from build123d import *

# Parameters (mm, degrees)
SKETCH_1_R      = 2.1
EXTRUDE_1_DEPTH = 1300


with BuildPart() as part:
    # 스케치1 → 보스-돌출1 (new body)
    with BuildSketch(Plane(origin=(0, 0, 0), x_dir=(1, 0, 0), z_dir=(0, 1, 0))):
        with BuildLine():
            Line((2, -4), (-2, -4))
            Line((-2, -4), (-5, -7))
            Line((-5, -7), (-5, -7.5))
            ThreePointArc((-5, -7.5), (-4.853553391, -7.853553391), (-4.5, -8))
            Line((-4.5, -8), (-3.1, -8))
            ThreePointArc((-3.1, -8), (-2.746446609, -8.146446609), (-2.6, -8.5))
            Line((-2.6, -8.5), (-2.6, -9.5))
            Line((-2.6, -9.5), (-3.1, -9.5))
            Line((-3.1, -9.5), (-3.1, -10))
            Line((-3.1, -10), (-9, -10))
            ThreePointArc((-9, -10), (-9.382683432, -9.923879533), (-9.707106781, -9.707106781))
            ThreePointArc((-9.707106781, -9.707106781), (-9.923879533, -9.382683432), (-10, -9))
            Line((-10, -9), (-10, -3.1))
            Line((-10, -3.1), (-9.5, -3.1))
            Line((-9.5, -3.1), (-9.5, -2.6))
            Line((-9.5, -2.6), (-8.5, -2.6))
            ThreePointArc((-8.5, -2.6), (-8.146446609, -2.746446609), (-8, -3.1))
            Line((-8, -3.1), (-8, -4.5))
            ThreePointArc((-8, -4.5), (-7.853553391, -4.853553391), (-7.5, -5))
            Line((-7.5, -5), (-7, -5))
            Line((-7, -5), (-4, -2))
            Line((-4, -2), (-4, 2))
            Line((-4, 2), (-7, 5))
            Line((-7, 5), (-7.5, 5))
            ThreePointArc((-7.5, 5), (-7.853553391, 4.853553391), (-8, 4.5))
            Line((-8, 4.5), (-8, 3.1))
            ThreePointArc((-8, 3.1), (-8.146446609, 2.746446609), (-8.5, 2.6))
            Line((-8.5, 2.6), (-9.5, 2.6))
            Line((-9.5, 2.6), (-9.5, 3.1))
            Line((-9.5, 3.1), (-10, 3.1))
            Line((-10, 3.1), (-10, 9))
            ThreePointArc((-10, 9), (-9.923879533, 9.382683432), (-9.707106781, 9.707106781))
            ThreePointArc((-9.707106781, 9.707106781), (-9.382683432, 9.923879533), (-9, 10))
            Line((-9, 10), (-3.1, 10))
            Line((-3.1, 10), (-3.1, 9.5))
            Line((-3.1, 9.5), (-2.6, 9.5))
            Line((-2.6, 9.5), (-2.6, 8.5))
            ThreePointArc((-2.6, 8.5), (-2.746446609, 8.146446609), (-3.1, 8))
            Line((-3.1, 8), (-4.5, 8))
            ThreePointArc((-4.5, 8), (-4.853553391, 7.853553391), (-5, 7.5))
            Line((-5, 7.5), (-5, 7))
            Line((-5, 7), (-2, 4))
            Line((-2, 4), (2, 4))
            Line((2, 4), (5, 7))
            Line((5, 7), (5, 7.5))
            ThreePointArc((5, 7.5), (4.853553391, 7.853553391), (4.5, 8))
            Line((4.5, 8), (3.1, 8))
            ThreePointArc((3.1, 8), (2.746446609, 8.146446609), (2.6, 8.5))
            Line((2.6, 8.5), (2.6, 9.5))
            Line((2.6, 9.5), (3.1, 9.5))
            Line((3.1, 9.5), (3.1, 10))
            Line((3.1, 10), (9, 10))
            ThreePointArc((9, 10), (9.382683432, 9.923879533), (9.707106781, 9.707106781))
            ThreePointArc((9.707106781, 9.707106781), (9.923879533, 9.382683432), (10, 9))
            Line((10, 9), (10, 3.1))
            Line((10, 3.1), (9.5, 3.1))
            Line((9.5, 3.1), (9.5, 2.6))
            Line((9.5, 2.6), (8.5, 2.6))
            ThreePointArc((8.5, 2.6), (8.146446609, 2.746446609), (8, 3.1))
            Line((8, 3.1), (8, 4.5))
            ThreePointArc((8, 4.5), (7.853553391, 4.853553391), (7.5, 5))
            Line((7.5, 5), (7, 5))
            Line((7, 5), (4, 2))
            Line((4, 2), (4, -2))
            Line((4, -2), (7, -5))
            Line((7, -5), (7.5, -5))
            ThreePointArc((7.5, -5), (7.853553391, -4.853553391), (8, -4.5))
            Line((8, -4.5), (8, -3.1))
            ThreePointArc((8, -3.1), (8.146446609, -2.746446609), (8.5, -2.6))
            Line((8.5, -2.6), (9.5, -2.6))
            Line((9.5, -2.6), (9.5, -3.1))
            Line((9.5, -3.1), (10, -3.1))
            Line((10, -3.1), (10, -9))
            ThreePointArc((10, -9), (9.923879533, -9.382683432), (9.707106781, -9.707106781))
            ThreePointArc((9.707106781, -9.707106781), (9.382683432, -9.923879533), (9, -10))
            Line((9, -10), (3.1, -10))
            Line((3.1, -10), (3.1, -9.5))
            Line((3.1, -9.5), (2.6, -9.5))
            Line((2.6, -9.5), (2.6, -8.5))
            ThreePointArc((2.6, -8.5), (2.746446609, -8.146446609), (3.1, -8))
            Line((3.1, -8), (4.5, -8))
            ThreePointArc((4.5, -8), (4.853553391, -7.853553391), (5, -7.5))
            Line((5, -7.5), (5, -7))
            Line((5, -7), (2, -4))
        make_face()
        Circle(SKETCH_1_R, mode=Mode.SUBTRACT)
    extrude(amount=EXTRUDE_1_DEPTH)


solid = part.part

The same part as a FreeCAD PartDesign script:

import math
import FreeCAD as App
import Part
import Sketcher

V = App.Vector

doc = App.newDocument("Part")
body = doc.addObject("PartDesign::Body", "Body")

sketch1 = body.newObject("Sketcher::SketchObject", "Sketch")
sketch1.AttachmentSupport = (doc.getObject("XZ_Plane"), [""])
sketch1.MapMode = "FlatFace"
sketch1.addGeometry(Part.LineSegment(V(-2, 4, 0), V(2, 4, 0)), False)
sketch1.addGeometry(Part.LineSegment(V(2, 4, 0), V(5, 7, 0)), False)
sketch1.addGeometry(Part.LineSegment(V(5, 7, 0), V(5, 7.5, 0)), False)
sketch1.addGeometry(Part.ArcOfCircle(Part.Circle(V(4.5, 7.5, 0), V(0, 0, 1), 0.5), math.radians(0), math.radians(90)), False)
sketch1.addGeometry(Part.LineSegment(V(4.5, 8, 0), V(3.1, 8, 0)), False)
sketch1.addGeometry(Part.ArcOfCircle(Part.Circle(V(3.1, 8.5, 0), V(0, 0, 1), 0.5), math.radians(180), math.radians(270)), False)
sketch1.addGeometry(Part.LineSegment(V(2.6, 8.5, 0), V(2.6, 9.5, 0)), False)
sketch1.addGeometry(Part.LineSegment(V(2.6, 9.5, 0), V(3.1, 9.5, 0)), False)
sketch1.addGeometry(Part.LineSegment(V(3.1, 9.5, 0), V(3.1, 10, 0)), False)
sketch1.addGeometry(Part.LineSegment(V(3.1, 10, 0), V(9, 10, 0)), False)
sketch1.addGeometry(Part.ArcOfCircle(Part.Circle(V(9, 9, 0), V(0, 0, 1), 1), math.radians(45), math.radians(90)), False)
sketch1.addGeometry(Part.ArcOfCircle(Part.Circle(V(9, 9, 0), V(0, 0, 1), 1), math.radians(0), math.radians(45)), False)
sketch1.addGeometry(Part.LineSegment(V(10, 9, 0), V(10, 3.1, 0)), False)
sketch1.addGeometry(Part.LineSegment(V(10, 3.1, 0), V(9.5, 3.1, 0)), False)
sketch1.addGeometry(Part.LineSegment(V(9.5, 3.1, 0), V(9.5, 2.6, 0)), False)
sketch1.addGeometry(Part.LineSegment(V(9.5, 2.6, 0), V(8.5, 2.6, 0)), False)
sketch1.addGeometry(Part.ArcOfCircle(Part.Circle(V(8.5, 3.1, 0), V(0, 0, 1), 0.5), math.radians(180), math.radians(270)), False)
sketch1.addGeometry(Part.LineSegment(V(8, 3.1, 0), V(8, 4.5, 0)), False)
sketch1.addGeometry(Part.ArcOfCircle(Part.Circle(V(7.5, 4.5, 0), V(0, 0, 1), 0.5), math.radians(0), math.radians(90)), False)
sketch1.addGeometry(Part.LineSegment(V(7.5, 5, 0), V(7, 5, 0)), False)
sketch1.addGeometry(Part.LineSegment(V(7, 5, 0), V(4, 2, 0)), False)
sketch1.addGeometry(Part.LineSegment(V(4, 2, 0), V(4, -2, 0)), False)
sketch1.addGeometry(Part.LineSegment(V(4, -2, 0), V(7, -5, 0)), False)
sketch1.addGeometry(Part.LineSegment(V(7, -5, 0), V(7.5, -5, 0)), False)
sketch1.addGeometry(Part.ArcOfCircle(Part.Circle(V(7.5, -4.5, 0), V(0, 0, 1), 0.5), math.radians(-90), math.radians(0)), False)
sketch1.addGeometry(Part.LineSegment(V(8, -4.5, 0), V(8, -3.1, 0)), False)
sketch1.addGeometry(Part.ArcOfCircle(Part.Circle(V(8.5, -3.1, 0), V(0, 0, 1), 0.5), math.radians(90), math.radians(180)), False)
sketch1.addGeometry(Part.LineSegment(V(8.5, -2.6, 0), V(9.5, -2.6, 0)), False)
sketch1.addGeometry(Part.LineSegment(V(9.5, -2.6, 0), V(9.5, -3.1, 0)), False)
sketch1.addGeometry(Part.LineSegment(V(9.5, -3.1, 0), V(10, -3.1, 0)), False)
sketch1.addGeometry(Part.LineSegment(V(10, -3.1, 0), V(10, -9, 0)), False)
sketch1.addGeometry(Part.ArcOfCircle(Part.Circle(V(9, -9, 0), V(0, 0, 1), 1), math.radians(-45), math.radians(0)), False)
sketch1.addGeometry(Part.ArcOfCircle(Part.Circle(V(9, -9, 0), V(0, 0, 1), 1), math.radians(-90), math.radians(-45)), False)
sketch1.addGeometry(Part.LineSegment(V(9, -10, 0), V(3.1, -10, 0)), False)
sketch1.addGeometry(Part.LineSegment(V(3.1, -10, 0), V(3.1, -9.5, 0)), False)
sketch1.addGeometry(Part.LineSegment(V(3.1, -9.5, 0), V(2.6, -9.5, 0)), False)
sketch1.addGeometry(Part.LineSegment(V(2.6, -9.5, 0), V(2.6, -8.5, 0)), False)
sketch1.addGeometry(Part.ArcOfCircle(Part.Circle(V(3.1, -8.5, 0), V(0, 0, 1), 0.5), math.radians(90), math.radians(180)), False)
sketch1.addGeometry(Part.LineSegment(V(3.1, -8, 0), V(4.5, -8, 0)), False)
sketch1.addGeometry(Part.ArcOfCircle(Part.Circle(V(4.5, -7.5, 0), V(0, 0, 1), 0.5), math.radians(-90), math.radians(0)), False)
sketch1.addGeometry(Part.LineSegment(V(5, -7.5, 0), V(5, -7, 0)), False)
sketch1.addGeometry(Part.LineSegment(V(5, -7, 0), V(2, -4, 0)), False)
sketch1.addGeometry(Part.LineSegment(V(2, -4, 0), V(-2, -4, 0)), False)
sketch1.addGeometry(Part.LineSegment(V(-2, -4, 0), V(-5, -7, 0)), False)
sketch1.addGeometry(Part.LineSegment(V(-5, -7, 0), V(-5, -7.5, 0)), False)
sketch1.addGeometry(Part.ArcOfCircle(Part.Circle(V(-4.5, -7.5, 0), V(0, 0, 1), 0.5), math.radians(180), math.radians(270)), False)
sketch1.addGeometry(Part.LineSegment(V(-4.5, -8, 0), V(-3.1, -8, 0)), False)
sketch1.addGeometry(Part.ArcOfCircle(Part.Circle(V(-3.1, -8.5, 0), V(0, 0, 1), 0.5), math.radians(0), math.radians(90)), False)
sketch1.addGeometry(Part.LineSegment(V(-2.6, -8.5, 0), V(-2.6, -9.5, 0)), False)
sketch1.addGeometry(Part.LineSegment(V(-2.6, -9.5, 0), V(-3.1, -9.5, 0)), False)
sketch1.addGeometry(Part.LineSegment(V(-3.1, -9.5, 0), V(-3.1, -10, 0)), False)
sketch1.addGeometry(Part.LineSegment(V(-3.1, -10, 0), V(-9, -10, 0)), False)
sketch1.addGeometry(Part.ArcOfCircle(Part.Circle(V(-9, -9, 0), V(0, 0, 1), 1), math.radians(-135), math.radians(-90)), False)
sketch1.addGeometry(Part.ArcOfCircle(Part.Circle(V(-9, -9, 0), V(0, 0, 1), 1), math.radians(180), math.radians(225)), False)
sketch1.addGeometry(Part.LineSegment(V(-10, -9, 0), V(-10, -3.1, 0)), False)
sketch1.addGeometry(Part.LineSegment(V(-10, -3.1, 0), V(-9.5, -3.1, 0)), False)
sketch1.addGeometry(Part.LineSegment(V(-9.5, -3.1, 0), V(-9.5, -2.6, 0)), False)
sketch1.addGeometry(Part.LineSegment(V(-9.5, -2.6, 0), V(-8.5, -2.6, 0)), False)
sketch1.addGeometry(Part.ArcOfCircle(Part.Circle(V(-8.5, -3.1, 0), V(0, 0, 1), 0.5), math.radians(0), math.radians(90)), False)
sketch1.addGeometry(Part.LineSegment(V(-8, -3.1, 0), V(-8, -4.5, 0)), False)
sketch1.addGeometry(Part.ArcOfCircle(Part.Circle(V(-7.5, -4.5, 0), V(0, 0, 1), 0.5), math.radians(180), math.radians(270)), False)
sketch1.addGeometry(Part.LineSegment(V(-7.5, -5, 0), V(-7, -5, 0)), False)
sketch1.addGeometry(Part.LineSegment(V(-7, -5, 0), V(-4, -2, 0)), False)
sketch1.addGeometry(Part.LineSegment(V(-4, -2, 0), V(-4, 2, 0)), False)
sketch1.addGeometry(Part.LineSegment(V(-4, 2, 0), V(-7, 5, 0)), False)
sketch1.addGeometry(Part.LineSegment(V(-7, 5, 0), V(-7.5, 5, 0)), False)
sketch1.addGeometry(Part.ArcOfCircle(Part.Circle(V(-7.5, 4.5, 0), V(0, 0, 1), 0.5), math.radians(90), math.radians(180)), False)
sketch1.addGeometry(Part.LineSegment(V(-8, 4.5, 0), V(-8, 3.1, 0)), False)
sketch1.addGeometry(Part.ArcOfCircle(Part.Circle(V(-8.5, 3.1, 0), V(0, 0, 1), 0.5), math.radians(-90), math.radians(0)), False)
sketch1.addGeometry(Part.LineSegment(V(-8.5, 2.6, 0), V(-9.5, 2.6, 0)), False)
sketch1.addGeometry(Part.LineSegment(V(-9.5, 2.6, 0), V(-9.5, 3.1, 0)), False)
sketch1.addGeometry(Part.LineSegment(V(-9.5, 3.1, 0), V(-10, 3.1, 0)), False)
sketch1.addGeometry(Part.LineSegment(V(-10, 3.1, 0), V(-10, 9, 0)), False)
sketch1.addGeometry(Part.ArcOfCircle(Part.Circle(V(-9, 9, 0), V(0, 0, 1), 1), math.radians(135), math.radians(180)), False)
sketch1.addGeometry(Part.ArcOfCircle(Part.Circle(V(-9, 9, 0), V(0, 0, 1), 1), math.radians(90), math.radians(135)), False)
sketch1.addGeometry(Part.LineSegment(V(-9, 10, 0), V(-3.1, 10, 0)), False)
sketch1.addGeometry(Part.LineSegment(V(-3.1, 10, 0), V(-3.1, 9.5, 0)), False)
sketch1.addGeometry(Part.LineSegment(V(-3.1, 9.5, 0), V(-2.6, 9.5, 0)), False)
sketch1.addGeometry(Part.LineSegment(V(-2.6, 9.5, 0), V(-2.6, 8.5, 0)), False)
sketch1.addGeometry(Part.ArcOfCircle(Part.Circle(V(-3.1, 8.5, 0), V(0, 0, 1), 0.5), math.radians(-90), math.radians(0)), False)
sketch1.addGeometry(Part.LineSegment(V(-3.1, 8, 0), V(-4.5, 8, 0)), False)
sketch1.addGeometry(Part.ArcOfCircle(Part.Circle(V(-4.5, 7.5, 0), V(0, 0, 1), 0.5), math.radians(90), math.radians(180)), False)
sketch1.addGeometry(Part.LineSegment(V(-5, 7.5, 0), V(-5, 7, 0)), False)
sketch1.addGeometry(Part.LineSegment(V(-5, 7, 0), V(-2, 4, 0)), False)
sketch1.addGeometry(Part.Circle(V(0, 0, 0), V(0, 0, 1), 2.1), False)
sketch1.addConstraint(Sketcher.Constraint("Coincident", 0, 2, 1, 1))
sketch1.addConstraint(Sketcher.Constraint("Coincident", 1, 2, 2, 1))
sketch1.addConstraint(Sketcher.Constraint("Tangent", 2, 2, 3, 1))
sketch1.addConstraint(Sketcher.Constraint("Tangent", 3, 2, 4, 1))
sketch1.addConstraint(Sketcher.Constraint("Tangent", 4, 2, 5, 2))
sketch1.addConstraint(Sketcher.Constraint("Tangent", 5, 1, 6, 1))
sketch1.addConstraint(Sketcher.Constraint("Coincident", 6, 2, 7, 1))
sketch1.addConstraint(Sketcher.Constraint("Coincident", 7, 2, 8, 1))
sketch1.addConstraint(Sketcher.Constraint("Coincident", 8, 2, 9, 1))
sketch1.addConstraint(Sketcher.Constraint("Tangent", 9, 2, 10, 2))
sketch1.addConstraint(Sketcher.Constraint("Tangent", 10, 1, 11, 2))
sketch1.addConstraint(Sketcher.Constraint("Tangent", 11, 1, 12, 1))
sketch1.addConstraint(Sketcher.Constraint("Coincident", 12, 2, 13, 1))
sketch1.addConstraint(Sketcher.Constraint("Coincident", 13, 2, 14, 1))
sketch1.addConstraint(Sketcher.Constraint("Coincident", 14, 2, 15, 1))
sketch1.addConstraint(Sketcher.Constraint("Tangent", 15, 2, 16, 2))
sketch1.addConstraint(Sketcher.Constraint("Tangent", 16, 1, 17, 1))
sketch1.addConstraint(Sketcher.Constraint("Tangent", 17, 2, 18, 1))
sketch1.addConstraint(Sketcher.Constraint("Tangent", 18, 2, 19, 1))
sketch1.addConstraint(Sketcher.Constraint("Coincident", 19, 2, 20, 1))
sketch1.addConstraint(Sketcher.Constraint("Coincident", 20, 2, 21, 1))
sketch1.addConstraint(Sketcher.Constraint("Coincident", 21, 2, 22, 1))
sketch1.addConstraint(Sketcher.Constraint("Coincident", 22, 2, 23, 1))
sketch1.addConstraint(Sketcher.Constraint("Tangent", 23, 2, 24, 1))
sketch1.addConstraint(Sketcher.Constraint("Tangent", 24, 2, 25, 1))
sketch1.addConstraint(Sketcher.Constraint("Tangent", 25, 2, 26, 2))
sketch1.addConstraint(Sketcher.Constraint("Tangent", 26, 1, 27, 1))
sketch1.addConstraint(Sketcher.Constraint("Coincident", 27, 2, 28, 1))
sketch1.addConstraint(Sketcher.Constraint("Coincident", 28, 2, 29, 1))
sketch1.addConstraint(Sketcher.Constraint("Coincident", 29, 2, 30, 1))
sketch1.addConstraint(Sketcher.Constraint("Tangent", 30, 2, 31, 2))
sketch1.addConstraint(Sketcher.Constraint("Tangent", 31, 1, 32, 2))
sketch1.addConstraint(Sketcher.Constraint("Tangent", 32, 1, 33, 1))
sketch1.addConstraint(Sketcher.Constraint("Coincident", 33, 2, 34, 1))
sketch1.addConstraint(Sketcher.Constraint("Coincident", 34, 2, 35, 1))
sketch1.addConstraint(Sketcher.Constraint("Coincident", 35, 2, 36, 1))
sketch1.addConstraint(Sketcher.Constraint("Tangent", 36, 2, 37, 2))
sketch1.addConstraint(Sketcher.Constraint("Tangent", 37, 1, 38, 1))
sketch1.addConstraint(Sketcher.Constraint("Tangent", 38, 2, 39, 1))
sketch1.addConstraint(Sketcher.Constraint("Tangent", 39, 2, 40, 1))
sketch1.addConstraint(Sketcher.Constraint("Coincident", 40, 2, 41, 1))
sketch1.addConstraint(Sketcher.Constraint("Coincident", 41, 2, 42, 1))
sketch1.addConstraint(Sketcher.Constraint("Coincident", 42, 2, 43, 1))
sketch1.addConstraint(Sketcher.Constraint("Coincident", 43, 2, 44, 1))
sketch1.addConstraint(Sketcher.Constraint("Tangent", 44, 2, 45, 1))
sketch1.addConstraint(Sketcher.Constraint("Tangent", 45, 2, 46, 1))
sketch1.addConstraint(Sketcher.Constraint("Tangent", 46, 2, 47, 2))
sketch1.addConstraint(Sketcher.Constraint("Tangent", 47, 1, 48, 1))
sketch1.addConstraint(Sketcher.Constraint("Coincident", 48, 2, 49, 1))
sketch1.addConstraint(Sketcher.Constraint("Coincident", 49, 2, 50, 1))
sketch1.addConstraint(Sketcher.Constraint("Coincident", 50, 2, 51, 1))
sketch1.addConstraint(Sketcher.Constraint("Tangent", 51, 2, 52, 2))
sketch1.addConstraint(Sketcher.Constraint("Tangent", 52, 1, 53, 2))
sketch1.addConstraint(Sketcher.Constraint("Tangent", 53, 1, 54, 1))
sketch1.addConstraint(Sketcher.Constraint("Coincident", 54, 2, 55, 1))
sketch1.addConstraint(Sketcher.Constraint("Coincident", 55, 2, 56, 1))
sketch1.addConstraint(Sketcher.Constraint("Coincident", 56, 2, 57, 1))
sketch1.addConstraint(Sketcher.Constraint("Tangent", 57, 2, 58, 2))
sketch1.addConstraint(Sketcher.Constraint("Tangent", 58, 1, 59, 1))
sketch1.addConstraint(Sketcher.Constraint("Tangent", 59, 2, 60, 1))
sketch1.addConstraint(Sketcher.Constraint("Tangent", 60, 2, 61, 1))
sketch1.addConstraint(Sketcher.Constraint("Coincident", 61, 2, 62, 1))
sketch1.addConstraint(Sketcher.Constraint("Coincident", 62, 2, 63, 1))
sketch1.addConstraint(Sketcher.Constraint("Coincident", 63, 2, 64, 1))
sketch1.addConstraint(Sketcher.Constraint("Coincident", 64, 2, 65, 1))
sketch1.addConstraint(Sketcher.Constraint("Tangent", 65, 2, 66, 1))
sketch1.addConstraint(Sketcher.Constraint("Tangent", 66, 2, 67, 1))
sketch1.addConstraint(Sketcher.Constraint("Tangent", 67, 2, 68, 2))
sketch1.addConstraint(Sketcher.Constraint("Tangent", 68, 1, 69, 1))
sketch1.addConstraint(Sketcher.Constraint("Coincident", 69, 2, 70, 1))
sketch1.addConstraint(Sketcher.Constraint("Coincident", 70, 2, 71, 1))
sketch1.addConstraint(Sketcher.Constraint("Coincident", 71, 2, 72, 1))
sketch1.addConstraint(Sketcher.Constraint("Tangent", 72, 2, 73, 2))
sketch1.addConstraint(Sketcher.Constraint("Tangent", 73, 1, 74, 2))
sketch1.addConstraint(Sketcher.Constraint("Tangent", 74, 1, 75, 1))
sketch1.addConstraint(Sketcher.Constraint("Coincident", 75, 2, 76, 1))
sketch1.addConstraint(Sketcher.Constraint("Coincident", 76, 2, 77, 1))
sketch1.addConstraint(Sketcher.Constraint("Coincident", 77, 2, 78, 1))
sketch1.addConstraint(Sketcher.Constraint("Tangent", 78, 2, 79, 2))
sketch1.addConstraint(Sketcher.Constraint("Tangent", 79, 1, 80, 1))
sketch1.addConstraint(Sketcher.Constraint("Tangent", 80, 2, 81, 1))
sketch1.addConstraint(Sketcher.Constraint("Tangent", 81, 2, 82, 1))
sketch1.addConstraint(Sketcher.Constraint("Coincident", 82, 2, 83, 1))
sketch1.addConstraint(Sketcher.Constraint("Coincident", 83, 2, 0, 1))
sketch1.addConstraint(Sketcher.Constraint("Horizontal", 0))
sketch1.addConstraint(Sketcher.Constraint("Vertical", 2))
sketch1.addConstraint(Sketcher.Constraint("Horizontal", 4))
sketch1.addConstraint(Sketcher.Constraint("Vertical", 6))
sketch1.addConstraint(Sketcher.Constraint("Horizontal", 7))
sketch1.addConstraint(Sketcher.Constraint("Vertical", 8))
sketch1.addConstraint(Sketcher.Constraint("Horizontal", 9))
sketch1.addConstraint(Sketcher.Constraint("Vertical", 12))
sketch1.addConstraint(Sketcher.Constraint("Horizontal", 13))
sketch1.addConstraint(Sketcher.Constraint("Vertical", 14))
sketch1.addConstraint(Sketcher.Constraint("Horizontal", 15))
sketch1.addConstraint(Sketcher.Constraint("Vertical", 17))
sketch1.addConstraint(Sketcher.Constraint("Horizontal", 19))
sketch1.addConstraint(Sketcher.Constraint("Vertical", 21))
sketch1.addConstraint(Sketcher.Constraint("Horizontal", 23))
sketch1.addConstraint(Sketcher.Constraint("Vertical", 25))
sketch1.addConstraint(Sketcher.Constraint("Horizontal", 27))
sketch1.addConstraint(Sketcher.Constraint("Vertical", 28))
sketch1.addConstraint(Sketcher.Constraint("Horizontal", 29))
sketch1.addConstraint(Sketcher.Constraint("Vertical", 30))
sketch1.addConstraint(Sketcher.Constraint("Horizontal", 33))
sketch1.addConstraint(Sketcher.Constraint("Vertical", 34))
sketch1.addConstraint(Sketcher.Constraint("Horizontal", 35))
sketch1.addConstraint(Sketcher.Constraint("Vertical", 36))
sketch1.addConstraint(Sketcher.Constraint("Horizontal", 38))
sketch1.addConstraint(Sketcher.Constraint("Vertical", 40))
sketch1.addConstraint(Sketcher.Constraint("Horizontal", 42))
sketch1.addConstraint(Sketcher.Constraint("Vertical", 44))
sketch1.addConstraint(Sketcher.Constraint("Horizontal", 46))
sketch1.addConstraint(Sketcher.Constraint("Vertical", 48))
sketch1.addConstraint(Sketcher.Constraint("Horizontal", 49))
sketch1.addConstraint(Sketcher.Constraint("Vertical", 50))
sketch1.addConstraint(Sketcher.Constraint("Horizontal", 51))
sketch1.addConstraint(Sketcher.Constraint("Vertical", 54))
sketch1.addConstraint(Sketcher.Constraint("Horizontal", 55))
sketch1.addConstraint(Sketcher.Constraint("Vertical", 56))
sketch1.addConstraint(Sketcher.Constraint("Horizontal", 57))
sketch1.addConstraint(Sketcher.Constraint("Vertical", 59))
sketch1.addConstraint(Sketcher.Constraint("Horizontal", 61))
sketch1.addConstraint(Sketcher.Constraint("Vertical", 63))
sketch1.addConstraint(Sketcher.Constraint("Horizontal", 65))
sketch1.addConstraint(Sketcher.Constraint("Vertical", 67))
sketch1.addConstraint(Sketcher.Constraint("Horizontal", 69))
sketch1.addConstraint(Sketcher.Constraint("Vertical", 70))
sketch1.addConstraint(Sketcher.Constraint("Horizontal", 71))
sketch1.addConstraint(Sketcher.Constraint("Vertical", 72))
sketch1.addConstraint(Sketcher.Constraint("Horizontal", 75))
sketch1.addConstraint(Sketcher.Constraint("Vertical", 76))
sketch1.addConstraint(Sketcher.Constraint("Horizontal", 77))
sketch1.addConstraint(Sketcher.Constraint("Vertical", 78))
sketch1.addConstraint(Sketcher.Constraint("Horizontal", 80))
sketch1.addConstraint(Sketcher.Constraint("Vertical", 82))
sketch1.addConstraint(Sketcher.Constraint("Coincident", 84, 3, -1, 1))
sketch1.addConstraint(Sketcher.Constraint("Equal", 3, 5))
sketch1.addConstraint(Sketcher.Constraint("Equal", 10, 11))
sketch1.addConstraint(Sketcher.Constraint("Equal", 5, 16))
sketch1.addConstraint(Sketcher.Constraint("Equal", 16, 18))
sketch1.addConstraint(Sketcher.Constraint("Equal", 18, 24))
sketch1.addConstraint(Sketcher.Constraint("Equal", 24, 26))
sketch1.addConstraint(Sketcher.Constraint("Equal", 11, 31))
sketch1.addConstraint(Sketcher.Constraint("Equal", 31, 32))
sketch1.addConstraint(Sketcher.Constraint("Equal", 26, 37))
sketch1.addConstraint(Sketcher.Constraint("Equal", 37, 39))
sketch1.addConstraint(Sketcher.Constraint("Equal", 39, 45))
sketch1.addConstraint(Sketcher.Constraint("Equal", 45, 47))
sketch1.addConstraint(Sketcher.Constraint("Equal", 32, 52))
sketch1.addConstraint(Sketcher.Constraint("Equal", 52, 53))
sketch1.addConstraint(Sketcher.Constraint("Equal", 47, 58))
sketch1.addConstraint(Sketcher.Constraint("Equal", 58, 60))
sketch1.addConstraint(Sketcher.Constraint("Equal", 60, 66))
sketch1.addConstraint(Sketcher.Constraint("Equal", 66, 68))
sketch1.addConstraint(Sketcher.Constraint("Equal", 53, 73))
sketch1.addConstraint(Sketcher.Constraint("Equal", 73, 74))
sketch1.addConstraint(Sketcher.Constraint("Equal", 68, 79))
sketch1.addConstraint(Sketcher.Constraint("Equal", 79, 81))
sketch1.addConstraint(Sketcher.Constraint("Symmetric", 3, 3, 45, 3, -1, 1))
sketch1.addConstraint(Sketcher.Constraint("Symmetric", 10, 3, 52, 3, -1, 1))
sketch1.addConstraint(Sketcher.Constraint("Symmetric", 16, 3, 58, 3, -1, 1))
sketch1.addConstraint(Sketcher.Constraint("Symmetric", 24, 3, 66, 3, -1, 1))
sketch1.addConstraint(Sketcher.Constraint("Symmetric", 31, 3, 73, 3, -1, 1))
sketch1.addConstraint(Sketcher.Constraint("Symmetric", 37, 3, 79, 3, -1, 1))
sketch1.addConstraint(Sketcher.Constraint("Symmetric", 0, 2, 42, 2, -1, 1))
sketch1.addConstraint(Sketcher.Constraint("Symmetric", 6, 2, 48, 2, -1, 1))
sketch1.addConstraint(Sketcher.Constraint("Symmetric", 13, 2, 55, 2, -1, 1))
sketch1.addConstraint(Sketcher.Constraint("Symmetric", 19, 2, 61, 2, -1, 1))
sketch1.addConstraint(Sketcher.Constraint("Symmetric", 20, 2, 62, 2, -1, 1))
sketch1.addConstraint(Sketcher.Constraint("Symmetric", 27, 2, 69, 2, -1, 1))
sketch1.addConstraint(Sketcher.Constraint("Symmetric", 34, 2, 76, 2, -1, 1))
sketch1.addConstraint(Sketcher.Constraint("Symmetric", 40, 2, 82, 2, -1, 1))
sketch1.addConstraint(Sketcher.Constraint("Symmetric", 39, 3, 45, 3, -2))
sketch1.addConstraint(Sketcher.Constraint("Symmetric", 31, 3, 52, 3, -2))
sketch1.addConstraint(Sketcher.Constraint("Symmetric", 26, 3, 58, 3, -2))
sketch1.addConstraint(Sketcher.Constraint("Symmetric", 35, 2, 48, 2, -2))
sketch1.addConstraint(Sketcher.Constraint("Symmetric", 28, 2, 55, 2, -2))
sketch1.addConstraint(Sketcher.Constraint("Symmetric", 22, 2, 61, 2, -2))
sketch1.addConstraint(Sketcher.Constraint("Parallel", 1, 20))
sketch1.addConstraint(Sketcher.Constraint("Perpendicular", 20, 22))
sketch1.addConstraint(Sketcher.Constraint("Parallel", 22, 41))
sketch1.addConstraint(Sketcher.Constraint("Perpendicular", 41, 43))
sketch1.addConstraint(Sketcher.Constraint("Perpendicular", 62, 64))
sketch1.addConstraint(Sketcher.Constraint("Parallel", 64, 83))
sketch1.addConstraint(Sketcher.Constraint("Horizontal", 68, 3, 12, 2))
sketch1.addConstraint(Sketcher.Constraint("Horizontal", 40, 2, 43, 2))
sketch1.addConstraint(Sketcher.Constraint("Horizontal", 31, 1, 52, 1))
sketch1.addConstraint(Sketcher.Constraint("Horizontal", 21, 2, 62, 2))
sketch1.addConstraint(Sketcher.Constraint("Horizontal", 20, 2, 63, 2))
sketch1.addConstraint(Sketcher.Constraint("Horizontal", 67, 2, 70, 2))
sketch1.addConstraint(Sketcher.Constraint("Horizontal", 10, 1, 73, 1))
sketch1.addConstraint(Sketcher.Constraint("Vertical", 4, 2, 7, 2))
sketch1.addConstraint(Sketcher.Constraint("Vertical", 10, 1, 31, 1))
sketch1.addConstraint(Sketcher.Constraint("Vertical", 8, 2, 33, 2))
sketch1.addConstraint(Sketcher.Constraint("Vertical", 46, 2, 49, 2))
sketch1.addConstraint(Sketcher.Constraint("Equal", 7, 13))
sketch1.addConstraint(Sketcher.Constraint("Equal", 13, 19))
sketch1.addConstraint(Sketcher.Constraint("Equal", 77, 2))
sketch1.addConstraint(Sketcher.Constraint("Equal", 69, 6))
sketch1.addConstraint(Sketcher.Constraint("Equal", 2, 8))
sketch1.addConstraint(Sketcher.Constraint("Equal", 75, 12))
sketch1.addConstraint(Sketcher.Constraint("Equal", 80, 17))
sketch1.addConstraint(Sketcher.Constraint("Equal", 42, 21))
sketch1.addConstraint(Sketcher.Constraint("Equal", 1, 20))
sketch1.addConstraint(Sketcher.Constraint("Radius", 10, 1.0))
sketch1.addConstraint(Sketcher.Constraint("Diameter", 84, 4.2))
sketch1.addConstraint(Sketcher.Constraint("Radius", 3, 0.5))
sketch1.addConstraint(Sketcher.Constraint("DistanceX", 0, 1, 0, 2, 4.0))
sketch1.addConstraint(Sketcher.Constraint("DistanceX", 15, 2, 15, 1, 1.0))
sketch1.addConstraint(Sketcher.Constraint("DistanceX", 4, 2, 4, 1, 1.4))
sketch1.addConstraint(Sketcher.Constraint("DistanceX", 9, 1, 9, 2, 5.9))
sketch1.addConstraint(Sketcher.Constraint("DistanceX", -1, 1, 10, 3, 9.0))
sketch1.addConstraint(Sketcher.Constraint("DistanceX", -1, 1, 10, 1, 9.707107))
pad1 = body.newObject("PartDesign::Pad", "Pad")
pad1.Profile = sketch1
pad1.Length = 1300
pad1.Reversed = True

doc.recompute()
